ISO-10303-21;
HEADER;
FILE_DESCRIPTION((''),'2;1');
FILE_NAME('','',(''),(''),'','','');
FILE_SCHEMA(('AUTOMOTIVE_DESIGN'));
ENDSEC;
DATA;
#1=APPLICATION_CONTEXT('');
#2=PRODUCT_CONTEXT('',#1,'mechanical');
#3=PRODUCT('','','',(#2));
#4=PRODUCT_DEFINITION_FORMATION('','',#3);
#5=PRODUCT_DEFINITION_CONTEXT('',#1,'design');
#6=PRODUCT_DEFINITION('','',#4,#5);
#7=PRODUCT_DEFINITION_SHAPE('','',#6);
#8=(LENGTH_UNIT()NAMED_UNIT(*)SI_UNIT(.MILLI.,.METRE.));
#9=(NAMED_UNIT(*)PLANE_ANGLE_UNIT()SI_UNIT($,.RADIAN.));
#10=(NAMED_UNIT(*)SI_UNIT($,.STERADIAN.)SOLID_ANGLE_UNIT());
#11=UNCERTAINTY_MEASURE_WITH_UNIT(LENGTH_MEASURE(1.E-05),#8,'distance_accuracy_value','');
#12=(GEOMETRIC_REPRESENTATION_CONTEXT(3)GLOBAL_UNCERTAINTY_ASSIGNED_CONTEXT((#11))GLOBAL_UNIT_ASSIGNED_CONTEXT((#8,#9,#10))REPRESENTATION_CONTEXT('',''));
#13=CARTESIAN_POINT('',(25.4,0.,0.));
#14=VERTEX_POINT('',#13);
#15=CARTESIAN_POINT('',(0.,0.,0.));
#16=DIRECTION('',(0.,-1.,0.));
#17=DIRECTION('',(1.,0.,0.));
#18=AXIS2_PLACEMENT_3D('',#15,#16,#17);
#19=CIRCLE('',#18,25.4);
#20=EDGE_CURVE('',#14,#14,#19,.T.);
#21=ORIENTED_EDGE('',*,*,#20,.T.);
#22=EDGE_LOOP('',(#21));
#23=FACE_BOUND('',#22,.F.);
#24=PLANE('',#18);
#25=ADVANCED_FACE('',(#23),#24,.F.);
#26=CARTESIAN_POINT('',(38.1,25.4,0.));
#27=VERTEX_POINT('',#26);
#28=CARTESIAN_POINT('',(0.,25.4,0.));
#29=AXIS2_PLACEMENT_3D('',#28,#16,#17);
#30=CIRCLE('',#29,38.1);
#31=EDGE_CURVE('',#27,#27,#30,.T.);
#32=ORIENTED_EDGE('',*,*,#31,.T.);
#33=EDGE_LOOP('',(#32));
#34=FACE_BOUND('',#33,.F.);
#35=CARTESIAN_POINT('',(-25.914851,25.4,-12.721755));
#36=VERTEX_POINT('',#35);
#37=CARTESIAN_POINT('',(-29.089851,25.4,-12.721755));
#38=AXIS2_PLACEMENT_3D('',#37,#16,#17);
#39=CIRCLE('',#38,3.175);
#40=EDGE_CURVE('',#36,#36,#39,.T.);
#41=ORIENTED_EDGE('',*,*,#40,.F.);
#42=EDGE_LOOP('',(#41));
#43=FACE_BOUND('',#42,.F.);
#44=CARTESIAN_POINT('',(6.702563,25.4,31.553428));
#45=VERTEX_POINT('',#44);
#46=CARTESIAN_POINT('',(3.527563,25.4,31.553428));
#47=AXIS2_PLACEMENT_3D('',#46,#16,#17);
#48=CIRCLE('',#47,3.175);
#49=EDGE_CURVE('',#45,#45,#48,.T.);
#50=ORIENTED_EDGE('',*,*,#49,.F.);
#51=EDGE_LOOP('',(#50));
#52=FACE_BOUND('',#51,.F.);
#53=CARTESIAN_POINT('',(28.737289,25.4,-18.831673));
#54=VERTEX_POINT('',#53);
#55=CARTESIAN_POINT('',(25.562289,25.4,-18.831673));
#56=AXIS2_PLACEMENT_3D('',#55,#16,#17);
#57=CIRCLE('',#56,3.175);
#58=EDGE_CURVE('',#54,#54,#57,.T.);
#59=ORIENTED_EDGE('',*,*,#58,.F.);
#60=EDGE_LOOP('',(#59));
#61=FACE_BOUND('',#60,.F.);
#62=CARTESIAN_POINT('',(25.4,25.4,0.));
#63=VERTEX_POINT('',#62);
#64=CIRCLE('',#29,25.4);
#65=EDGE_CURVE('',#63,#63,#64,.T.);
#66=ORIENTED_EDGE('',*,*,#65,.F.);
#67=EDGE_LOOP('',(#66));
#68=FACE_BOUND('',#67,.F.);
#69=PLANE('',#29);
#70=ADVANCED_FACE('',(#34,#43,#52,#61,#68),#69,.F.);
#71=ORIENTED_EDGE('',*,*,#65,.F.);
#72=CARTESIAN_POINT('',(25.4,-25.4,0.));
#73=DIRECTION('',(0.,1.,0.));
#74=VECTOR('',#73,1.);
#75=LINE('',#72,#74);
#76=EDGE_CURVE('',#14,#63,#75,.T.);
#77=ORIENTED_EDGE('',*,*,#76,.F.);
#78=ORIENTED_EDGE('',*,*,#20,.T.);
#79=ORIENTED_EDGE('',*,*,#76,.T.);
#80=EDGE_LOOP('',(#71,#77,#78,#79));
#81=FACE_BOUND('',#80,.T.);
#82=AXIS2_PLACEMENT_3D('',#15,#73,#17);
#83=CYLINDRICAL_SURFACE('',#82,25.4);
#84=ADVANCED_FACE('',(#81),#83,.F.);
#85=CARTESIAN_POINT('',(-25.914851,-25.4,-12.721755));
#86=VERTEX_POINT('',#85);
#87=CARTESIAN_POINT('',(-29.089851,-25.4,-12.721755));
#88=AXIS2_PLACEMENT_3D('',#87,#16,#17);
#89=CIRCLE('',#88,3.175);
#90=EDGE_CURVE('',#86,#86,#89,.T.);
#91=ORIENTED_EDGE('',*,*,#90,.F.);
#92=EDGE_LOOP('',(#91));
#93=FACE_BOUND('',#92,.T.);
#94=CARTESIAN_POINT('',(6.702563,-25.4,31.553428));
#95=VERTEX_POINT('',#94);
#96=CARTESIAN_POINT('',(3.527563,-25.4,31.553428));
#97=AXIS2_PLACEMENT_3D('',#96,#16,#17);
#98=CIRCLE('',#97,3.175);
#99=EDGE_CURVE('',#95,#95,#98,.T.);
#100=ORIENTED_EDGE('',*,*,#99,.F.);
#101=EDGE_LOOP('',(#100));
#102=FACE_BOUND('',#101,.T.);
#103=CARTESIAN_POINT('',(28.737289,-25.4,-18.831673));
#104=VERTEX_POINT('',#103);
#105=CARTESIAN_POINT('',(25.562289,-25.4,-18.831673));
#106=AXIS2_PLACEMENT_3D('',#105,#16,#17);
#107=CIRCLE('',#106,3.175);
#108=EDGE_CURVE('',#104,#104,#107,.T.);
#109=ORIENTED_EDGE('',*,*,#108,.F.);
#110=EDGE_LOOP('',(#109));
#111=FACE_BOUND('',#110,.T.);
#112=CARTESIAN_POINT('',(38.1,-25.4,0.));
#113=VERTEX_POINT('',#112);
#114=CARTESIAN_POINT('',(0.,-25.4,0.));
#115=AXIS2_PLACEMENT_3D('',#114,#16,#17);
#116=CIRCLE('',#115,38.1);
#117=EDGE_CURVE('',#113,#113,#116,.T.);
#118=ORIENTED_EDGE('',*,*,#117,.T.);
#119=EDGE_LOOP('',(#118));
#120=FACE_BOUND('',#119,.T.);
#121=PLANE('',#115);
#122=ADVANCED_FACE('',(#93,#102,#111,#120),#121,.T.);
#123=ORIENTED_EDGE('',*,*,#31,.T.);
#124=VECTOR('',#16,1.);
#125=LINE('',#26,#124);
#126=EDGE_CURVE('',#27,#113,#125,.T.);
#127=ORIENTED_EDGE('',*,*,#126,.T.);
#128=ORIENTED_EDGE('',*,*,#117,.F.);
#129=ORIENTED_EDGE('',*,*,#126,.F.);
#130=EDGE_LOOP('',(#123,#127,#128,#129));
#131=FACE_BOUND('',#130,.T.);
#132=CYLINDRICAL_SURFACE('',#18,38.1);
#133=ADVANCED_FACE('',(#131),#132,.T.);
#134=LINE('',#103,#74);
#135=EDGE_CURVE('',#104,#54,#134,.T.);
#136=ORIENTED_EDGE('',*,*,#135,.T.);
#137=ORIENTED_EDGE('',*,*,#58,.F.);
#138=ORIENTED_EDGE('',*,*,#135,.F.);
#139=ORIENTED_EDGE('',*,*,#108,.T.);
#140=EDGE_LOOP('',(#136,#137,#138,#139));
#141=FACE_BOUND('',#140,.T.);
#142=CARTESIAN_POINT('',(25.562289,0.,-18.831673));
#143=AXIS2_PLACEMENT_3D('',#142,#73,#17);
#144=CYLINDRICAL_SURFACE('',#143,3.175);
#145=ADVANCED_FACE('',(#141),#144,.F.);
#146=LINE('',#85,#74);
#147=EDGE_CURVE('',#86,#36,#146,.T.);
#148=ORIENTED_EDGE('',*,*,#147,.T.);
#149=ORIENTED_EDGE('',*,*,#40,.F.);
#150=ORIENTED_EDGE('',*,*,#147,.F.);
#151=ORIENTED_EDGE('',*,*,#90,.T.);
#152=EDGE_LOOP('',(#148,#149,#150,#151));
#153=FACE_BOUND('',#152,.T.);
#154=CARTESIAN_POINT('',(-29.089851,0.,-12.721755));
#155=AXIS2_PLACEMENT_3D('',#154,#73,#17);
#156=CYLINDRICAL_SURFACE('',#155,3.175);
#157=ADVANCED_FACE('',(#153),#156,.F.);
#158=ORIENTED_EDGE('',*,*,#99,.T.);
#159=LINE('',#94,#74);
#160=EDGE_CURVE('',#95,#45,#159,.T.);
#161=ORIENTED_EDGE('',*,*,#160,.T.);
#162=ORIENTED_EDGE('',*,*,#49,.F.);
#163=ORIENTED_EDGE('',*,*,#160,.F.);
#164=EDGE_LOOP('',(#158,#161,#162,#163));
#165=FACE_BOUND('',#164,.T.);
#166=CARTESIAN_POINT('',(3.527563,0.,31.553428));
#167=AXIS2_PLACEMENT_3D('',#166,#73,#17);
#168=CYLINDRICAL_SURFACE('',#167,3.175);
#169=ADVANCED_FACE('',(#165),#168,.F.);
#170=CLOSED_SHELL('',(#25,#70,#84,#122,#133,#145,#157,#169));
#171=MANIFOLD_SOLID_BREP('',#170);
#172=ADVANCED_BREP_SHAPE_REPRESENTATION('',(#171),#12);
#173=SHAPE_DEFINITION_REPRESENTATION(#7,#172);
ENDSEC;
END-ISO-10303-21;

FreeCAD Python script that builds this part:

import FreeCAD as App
import Part
import Sketcher
from FreeCAD import Vector
Q = App.Units.Quantity

doc = App.newDocument("Part")
params = doc.addObject("Spreadsheet::Sheet", "Params")
for row, (alias, value) in enumerate([
    ("sketch1_diameter", "3 in"),
    ("sketch1_diameter2", "2 in"),
    ("sketch1_diameter3", "0.25 in"),
    ("pad1_length", "2 in"),
    ("sketch2_diameter", "2 in"),
    ("pad2_length", "1 in"),
], start=1):
    params.set(f"A{row}", alias)
    params.set(f"B{row}", "=" + value)
    params.setAlias(f"B{row}", alias)

body = doc.addObject("PartDesign::Body", "Body")

# Sketch on XZ plane
sketch1 = doc.addObject("Sketcher::SketchObject", "Sketch")
body.addObject(sketch1)
sketch1.AttachmentSupport = (doc.XZ_Plane, [""])
sketch1.MapMode = "FlatFace"
sketch1.addGeometry(Part.Circle(Vector(0, 0, 0), Vector(0, 0, 1), 38.1), False)
sketch1.addGeometry(Part.Circle(Vector(-29.1, -12.7, 0), Vector(0, 0, 1), 3.2), False)
sketch1.addGeometry(Part.Circle(Vector(25.6, -18.8, 0), Vector(0, 0, 1), 3.2), False)
sketch1.addGeometry(Part.Circle(Vector(0, 0, 0), Vector(0, 0, 1), 25.4), False)
sketch1.addGeometry(Part.Circle(Vector(3.5, 31.6, 0), Vector(0, 0, 1), 3.2), False)
sketch1.addConstraint(Sketcher.Constraint("Coincident", 0, 3, -1, 1))
sketch1.addConstraint(Sketcher.Constraint("Coincident", 3, 3, -1, 1))
sketch1.addConstraint(Sketcher.Constraint("Equal", 1, 2))
sketch1.addConstraint(Sketcher.Constraint("Equal", 2, 4))
sketch1.addConstraint(Sketcher.Constraint("Diameter", 0, Q("3 in")))
sketch1.addConstraint(Sketcher.Constraint("Diameter", 3, Q("2 in")))
sketch1.addConstraint(Sketcher.Constraint("Diameter", 1, Q("0.25 in")))
sketch1.addConstraint(Sketcher.Constraint("DistanceY", 2, 3, 4, 3, 50.385101))
sketch1.addConstraint(Sketcher.Constraint("DistanceX", 1, 3, -1, 1, 29.089851))
sketch1.addConstraint(Sketcher.Constraint("DistanceX", -1, 1, 2, 3, 25.562289))
sketch1.addConstraint(Sketcher.Constraint("DistanceY", -1, 1, 4, 3, 31.553428))
sketch1.addConstraint(Sketcher.Constraint("DistanceY", 1, 3, -1, 1, 12.721755))
sketch1.addConstraint(Sketcher.Constraint("DistanceX", -1, 1, 4, 3, 3.527563))
sketch1.setExpression("Constraints[4]", "Params.sketch1_diameter")
sketch1.setExpression("Constraints[5]", "Params.sketch1_diameter2")
sketch1.setExpression("Constraints[6]", "Params.sketch1_diameter3")
pad1 = doc.addObject("PartDesign::Pad", "Pad")
body.addObject(pad1)
pad1.Profile = sketch1
pad1.setExpression("Length", "Params.pad1_length")
pad1.Midplane = True

# Sketch on XZ plane
sketch2 = doc.addObject("Sketcher::SketchObject", "Sketch001")
body.addObject(sketch2)
sketch2.AttachmentSupport = (doc.XZ_Plane, [""])
sketch2.MapMode = "FlatFace"
sketch2.addGeometry(Part.Circle(Vector(0, 0, 0), Vector(0, 0, 1), 25), False)
sketch2.addConstraint(Sketcher.Constraint("Coincident", 0, 3, -1, 1))
sketch2.addConstraint(Sketcher.Constraint("Diameter", 0, Q("2 in")))
sketch2.setExpression("Constraints[1]", "Params.sketch2_diameter")
pad2 = doc.addObject("PartDesign::Pad", "Pad001")
body.addObject(pad2)
pad2.Profile = sketch2
pad2.setExpression("Length", "Params.pad2_length")

doc.recompute()
